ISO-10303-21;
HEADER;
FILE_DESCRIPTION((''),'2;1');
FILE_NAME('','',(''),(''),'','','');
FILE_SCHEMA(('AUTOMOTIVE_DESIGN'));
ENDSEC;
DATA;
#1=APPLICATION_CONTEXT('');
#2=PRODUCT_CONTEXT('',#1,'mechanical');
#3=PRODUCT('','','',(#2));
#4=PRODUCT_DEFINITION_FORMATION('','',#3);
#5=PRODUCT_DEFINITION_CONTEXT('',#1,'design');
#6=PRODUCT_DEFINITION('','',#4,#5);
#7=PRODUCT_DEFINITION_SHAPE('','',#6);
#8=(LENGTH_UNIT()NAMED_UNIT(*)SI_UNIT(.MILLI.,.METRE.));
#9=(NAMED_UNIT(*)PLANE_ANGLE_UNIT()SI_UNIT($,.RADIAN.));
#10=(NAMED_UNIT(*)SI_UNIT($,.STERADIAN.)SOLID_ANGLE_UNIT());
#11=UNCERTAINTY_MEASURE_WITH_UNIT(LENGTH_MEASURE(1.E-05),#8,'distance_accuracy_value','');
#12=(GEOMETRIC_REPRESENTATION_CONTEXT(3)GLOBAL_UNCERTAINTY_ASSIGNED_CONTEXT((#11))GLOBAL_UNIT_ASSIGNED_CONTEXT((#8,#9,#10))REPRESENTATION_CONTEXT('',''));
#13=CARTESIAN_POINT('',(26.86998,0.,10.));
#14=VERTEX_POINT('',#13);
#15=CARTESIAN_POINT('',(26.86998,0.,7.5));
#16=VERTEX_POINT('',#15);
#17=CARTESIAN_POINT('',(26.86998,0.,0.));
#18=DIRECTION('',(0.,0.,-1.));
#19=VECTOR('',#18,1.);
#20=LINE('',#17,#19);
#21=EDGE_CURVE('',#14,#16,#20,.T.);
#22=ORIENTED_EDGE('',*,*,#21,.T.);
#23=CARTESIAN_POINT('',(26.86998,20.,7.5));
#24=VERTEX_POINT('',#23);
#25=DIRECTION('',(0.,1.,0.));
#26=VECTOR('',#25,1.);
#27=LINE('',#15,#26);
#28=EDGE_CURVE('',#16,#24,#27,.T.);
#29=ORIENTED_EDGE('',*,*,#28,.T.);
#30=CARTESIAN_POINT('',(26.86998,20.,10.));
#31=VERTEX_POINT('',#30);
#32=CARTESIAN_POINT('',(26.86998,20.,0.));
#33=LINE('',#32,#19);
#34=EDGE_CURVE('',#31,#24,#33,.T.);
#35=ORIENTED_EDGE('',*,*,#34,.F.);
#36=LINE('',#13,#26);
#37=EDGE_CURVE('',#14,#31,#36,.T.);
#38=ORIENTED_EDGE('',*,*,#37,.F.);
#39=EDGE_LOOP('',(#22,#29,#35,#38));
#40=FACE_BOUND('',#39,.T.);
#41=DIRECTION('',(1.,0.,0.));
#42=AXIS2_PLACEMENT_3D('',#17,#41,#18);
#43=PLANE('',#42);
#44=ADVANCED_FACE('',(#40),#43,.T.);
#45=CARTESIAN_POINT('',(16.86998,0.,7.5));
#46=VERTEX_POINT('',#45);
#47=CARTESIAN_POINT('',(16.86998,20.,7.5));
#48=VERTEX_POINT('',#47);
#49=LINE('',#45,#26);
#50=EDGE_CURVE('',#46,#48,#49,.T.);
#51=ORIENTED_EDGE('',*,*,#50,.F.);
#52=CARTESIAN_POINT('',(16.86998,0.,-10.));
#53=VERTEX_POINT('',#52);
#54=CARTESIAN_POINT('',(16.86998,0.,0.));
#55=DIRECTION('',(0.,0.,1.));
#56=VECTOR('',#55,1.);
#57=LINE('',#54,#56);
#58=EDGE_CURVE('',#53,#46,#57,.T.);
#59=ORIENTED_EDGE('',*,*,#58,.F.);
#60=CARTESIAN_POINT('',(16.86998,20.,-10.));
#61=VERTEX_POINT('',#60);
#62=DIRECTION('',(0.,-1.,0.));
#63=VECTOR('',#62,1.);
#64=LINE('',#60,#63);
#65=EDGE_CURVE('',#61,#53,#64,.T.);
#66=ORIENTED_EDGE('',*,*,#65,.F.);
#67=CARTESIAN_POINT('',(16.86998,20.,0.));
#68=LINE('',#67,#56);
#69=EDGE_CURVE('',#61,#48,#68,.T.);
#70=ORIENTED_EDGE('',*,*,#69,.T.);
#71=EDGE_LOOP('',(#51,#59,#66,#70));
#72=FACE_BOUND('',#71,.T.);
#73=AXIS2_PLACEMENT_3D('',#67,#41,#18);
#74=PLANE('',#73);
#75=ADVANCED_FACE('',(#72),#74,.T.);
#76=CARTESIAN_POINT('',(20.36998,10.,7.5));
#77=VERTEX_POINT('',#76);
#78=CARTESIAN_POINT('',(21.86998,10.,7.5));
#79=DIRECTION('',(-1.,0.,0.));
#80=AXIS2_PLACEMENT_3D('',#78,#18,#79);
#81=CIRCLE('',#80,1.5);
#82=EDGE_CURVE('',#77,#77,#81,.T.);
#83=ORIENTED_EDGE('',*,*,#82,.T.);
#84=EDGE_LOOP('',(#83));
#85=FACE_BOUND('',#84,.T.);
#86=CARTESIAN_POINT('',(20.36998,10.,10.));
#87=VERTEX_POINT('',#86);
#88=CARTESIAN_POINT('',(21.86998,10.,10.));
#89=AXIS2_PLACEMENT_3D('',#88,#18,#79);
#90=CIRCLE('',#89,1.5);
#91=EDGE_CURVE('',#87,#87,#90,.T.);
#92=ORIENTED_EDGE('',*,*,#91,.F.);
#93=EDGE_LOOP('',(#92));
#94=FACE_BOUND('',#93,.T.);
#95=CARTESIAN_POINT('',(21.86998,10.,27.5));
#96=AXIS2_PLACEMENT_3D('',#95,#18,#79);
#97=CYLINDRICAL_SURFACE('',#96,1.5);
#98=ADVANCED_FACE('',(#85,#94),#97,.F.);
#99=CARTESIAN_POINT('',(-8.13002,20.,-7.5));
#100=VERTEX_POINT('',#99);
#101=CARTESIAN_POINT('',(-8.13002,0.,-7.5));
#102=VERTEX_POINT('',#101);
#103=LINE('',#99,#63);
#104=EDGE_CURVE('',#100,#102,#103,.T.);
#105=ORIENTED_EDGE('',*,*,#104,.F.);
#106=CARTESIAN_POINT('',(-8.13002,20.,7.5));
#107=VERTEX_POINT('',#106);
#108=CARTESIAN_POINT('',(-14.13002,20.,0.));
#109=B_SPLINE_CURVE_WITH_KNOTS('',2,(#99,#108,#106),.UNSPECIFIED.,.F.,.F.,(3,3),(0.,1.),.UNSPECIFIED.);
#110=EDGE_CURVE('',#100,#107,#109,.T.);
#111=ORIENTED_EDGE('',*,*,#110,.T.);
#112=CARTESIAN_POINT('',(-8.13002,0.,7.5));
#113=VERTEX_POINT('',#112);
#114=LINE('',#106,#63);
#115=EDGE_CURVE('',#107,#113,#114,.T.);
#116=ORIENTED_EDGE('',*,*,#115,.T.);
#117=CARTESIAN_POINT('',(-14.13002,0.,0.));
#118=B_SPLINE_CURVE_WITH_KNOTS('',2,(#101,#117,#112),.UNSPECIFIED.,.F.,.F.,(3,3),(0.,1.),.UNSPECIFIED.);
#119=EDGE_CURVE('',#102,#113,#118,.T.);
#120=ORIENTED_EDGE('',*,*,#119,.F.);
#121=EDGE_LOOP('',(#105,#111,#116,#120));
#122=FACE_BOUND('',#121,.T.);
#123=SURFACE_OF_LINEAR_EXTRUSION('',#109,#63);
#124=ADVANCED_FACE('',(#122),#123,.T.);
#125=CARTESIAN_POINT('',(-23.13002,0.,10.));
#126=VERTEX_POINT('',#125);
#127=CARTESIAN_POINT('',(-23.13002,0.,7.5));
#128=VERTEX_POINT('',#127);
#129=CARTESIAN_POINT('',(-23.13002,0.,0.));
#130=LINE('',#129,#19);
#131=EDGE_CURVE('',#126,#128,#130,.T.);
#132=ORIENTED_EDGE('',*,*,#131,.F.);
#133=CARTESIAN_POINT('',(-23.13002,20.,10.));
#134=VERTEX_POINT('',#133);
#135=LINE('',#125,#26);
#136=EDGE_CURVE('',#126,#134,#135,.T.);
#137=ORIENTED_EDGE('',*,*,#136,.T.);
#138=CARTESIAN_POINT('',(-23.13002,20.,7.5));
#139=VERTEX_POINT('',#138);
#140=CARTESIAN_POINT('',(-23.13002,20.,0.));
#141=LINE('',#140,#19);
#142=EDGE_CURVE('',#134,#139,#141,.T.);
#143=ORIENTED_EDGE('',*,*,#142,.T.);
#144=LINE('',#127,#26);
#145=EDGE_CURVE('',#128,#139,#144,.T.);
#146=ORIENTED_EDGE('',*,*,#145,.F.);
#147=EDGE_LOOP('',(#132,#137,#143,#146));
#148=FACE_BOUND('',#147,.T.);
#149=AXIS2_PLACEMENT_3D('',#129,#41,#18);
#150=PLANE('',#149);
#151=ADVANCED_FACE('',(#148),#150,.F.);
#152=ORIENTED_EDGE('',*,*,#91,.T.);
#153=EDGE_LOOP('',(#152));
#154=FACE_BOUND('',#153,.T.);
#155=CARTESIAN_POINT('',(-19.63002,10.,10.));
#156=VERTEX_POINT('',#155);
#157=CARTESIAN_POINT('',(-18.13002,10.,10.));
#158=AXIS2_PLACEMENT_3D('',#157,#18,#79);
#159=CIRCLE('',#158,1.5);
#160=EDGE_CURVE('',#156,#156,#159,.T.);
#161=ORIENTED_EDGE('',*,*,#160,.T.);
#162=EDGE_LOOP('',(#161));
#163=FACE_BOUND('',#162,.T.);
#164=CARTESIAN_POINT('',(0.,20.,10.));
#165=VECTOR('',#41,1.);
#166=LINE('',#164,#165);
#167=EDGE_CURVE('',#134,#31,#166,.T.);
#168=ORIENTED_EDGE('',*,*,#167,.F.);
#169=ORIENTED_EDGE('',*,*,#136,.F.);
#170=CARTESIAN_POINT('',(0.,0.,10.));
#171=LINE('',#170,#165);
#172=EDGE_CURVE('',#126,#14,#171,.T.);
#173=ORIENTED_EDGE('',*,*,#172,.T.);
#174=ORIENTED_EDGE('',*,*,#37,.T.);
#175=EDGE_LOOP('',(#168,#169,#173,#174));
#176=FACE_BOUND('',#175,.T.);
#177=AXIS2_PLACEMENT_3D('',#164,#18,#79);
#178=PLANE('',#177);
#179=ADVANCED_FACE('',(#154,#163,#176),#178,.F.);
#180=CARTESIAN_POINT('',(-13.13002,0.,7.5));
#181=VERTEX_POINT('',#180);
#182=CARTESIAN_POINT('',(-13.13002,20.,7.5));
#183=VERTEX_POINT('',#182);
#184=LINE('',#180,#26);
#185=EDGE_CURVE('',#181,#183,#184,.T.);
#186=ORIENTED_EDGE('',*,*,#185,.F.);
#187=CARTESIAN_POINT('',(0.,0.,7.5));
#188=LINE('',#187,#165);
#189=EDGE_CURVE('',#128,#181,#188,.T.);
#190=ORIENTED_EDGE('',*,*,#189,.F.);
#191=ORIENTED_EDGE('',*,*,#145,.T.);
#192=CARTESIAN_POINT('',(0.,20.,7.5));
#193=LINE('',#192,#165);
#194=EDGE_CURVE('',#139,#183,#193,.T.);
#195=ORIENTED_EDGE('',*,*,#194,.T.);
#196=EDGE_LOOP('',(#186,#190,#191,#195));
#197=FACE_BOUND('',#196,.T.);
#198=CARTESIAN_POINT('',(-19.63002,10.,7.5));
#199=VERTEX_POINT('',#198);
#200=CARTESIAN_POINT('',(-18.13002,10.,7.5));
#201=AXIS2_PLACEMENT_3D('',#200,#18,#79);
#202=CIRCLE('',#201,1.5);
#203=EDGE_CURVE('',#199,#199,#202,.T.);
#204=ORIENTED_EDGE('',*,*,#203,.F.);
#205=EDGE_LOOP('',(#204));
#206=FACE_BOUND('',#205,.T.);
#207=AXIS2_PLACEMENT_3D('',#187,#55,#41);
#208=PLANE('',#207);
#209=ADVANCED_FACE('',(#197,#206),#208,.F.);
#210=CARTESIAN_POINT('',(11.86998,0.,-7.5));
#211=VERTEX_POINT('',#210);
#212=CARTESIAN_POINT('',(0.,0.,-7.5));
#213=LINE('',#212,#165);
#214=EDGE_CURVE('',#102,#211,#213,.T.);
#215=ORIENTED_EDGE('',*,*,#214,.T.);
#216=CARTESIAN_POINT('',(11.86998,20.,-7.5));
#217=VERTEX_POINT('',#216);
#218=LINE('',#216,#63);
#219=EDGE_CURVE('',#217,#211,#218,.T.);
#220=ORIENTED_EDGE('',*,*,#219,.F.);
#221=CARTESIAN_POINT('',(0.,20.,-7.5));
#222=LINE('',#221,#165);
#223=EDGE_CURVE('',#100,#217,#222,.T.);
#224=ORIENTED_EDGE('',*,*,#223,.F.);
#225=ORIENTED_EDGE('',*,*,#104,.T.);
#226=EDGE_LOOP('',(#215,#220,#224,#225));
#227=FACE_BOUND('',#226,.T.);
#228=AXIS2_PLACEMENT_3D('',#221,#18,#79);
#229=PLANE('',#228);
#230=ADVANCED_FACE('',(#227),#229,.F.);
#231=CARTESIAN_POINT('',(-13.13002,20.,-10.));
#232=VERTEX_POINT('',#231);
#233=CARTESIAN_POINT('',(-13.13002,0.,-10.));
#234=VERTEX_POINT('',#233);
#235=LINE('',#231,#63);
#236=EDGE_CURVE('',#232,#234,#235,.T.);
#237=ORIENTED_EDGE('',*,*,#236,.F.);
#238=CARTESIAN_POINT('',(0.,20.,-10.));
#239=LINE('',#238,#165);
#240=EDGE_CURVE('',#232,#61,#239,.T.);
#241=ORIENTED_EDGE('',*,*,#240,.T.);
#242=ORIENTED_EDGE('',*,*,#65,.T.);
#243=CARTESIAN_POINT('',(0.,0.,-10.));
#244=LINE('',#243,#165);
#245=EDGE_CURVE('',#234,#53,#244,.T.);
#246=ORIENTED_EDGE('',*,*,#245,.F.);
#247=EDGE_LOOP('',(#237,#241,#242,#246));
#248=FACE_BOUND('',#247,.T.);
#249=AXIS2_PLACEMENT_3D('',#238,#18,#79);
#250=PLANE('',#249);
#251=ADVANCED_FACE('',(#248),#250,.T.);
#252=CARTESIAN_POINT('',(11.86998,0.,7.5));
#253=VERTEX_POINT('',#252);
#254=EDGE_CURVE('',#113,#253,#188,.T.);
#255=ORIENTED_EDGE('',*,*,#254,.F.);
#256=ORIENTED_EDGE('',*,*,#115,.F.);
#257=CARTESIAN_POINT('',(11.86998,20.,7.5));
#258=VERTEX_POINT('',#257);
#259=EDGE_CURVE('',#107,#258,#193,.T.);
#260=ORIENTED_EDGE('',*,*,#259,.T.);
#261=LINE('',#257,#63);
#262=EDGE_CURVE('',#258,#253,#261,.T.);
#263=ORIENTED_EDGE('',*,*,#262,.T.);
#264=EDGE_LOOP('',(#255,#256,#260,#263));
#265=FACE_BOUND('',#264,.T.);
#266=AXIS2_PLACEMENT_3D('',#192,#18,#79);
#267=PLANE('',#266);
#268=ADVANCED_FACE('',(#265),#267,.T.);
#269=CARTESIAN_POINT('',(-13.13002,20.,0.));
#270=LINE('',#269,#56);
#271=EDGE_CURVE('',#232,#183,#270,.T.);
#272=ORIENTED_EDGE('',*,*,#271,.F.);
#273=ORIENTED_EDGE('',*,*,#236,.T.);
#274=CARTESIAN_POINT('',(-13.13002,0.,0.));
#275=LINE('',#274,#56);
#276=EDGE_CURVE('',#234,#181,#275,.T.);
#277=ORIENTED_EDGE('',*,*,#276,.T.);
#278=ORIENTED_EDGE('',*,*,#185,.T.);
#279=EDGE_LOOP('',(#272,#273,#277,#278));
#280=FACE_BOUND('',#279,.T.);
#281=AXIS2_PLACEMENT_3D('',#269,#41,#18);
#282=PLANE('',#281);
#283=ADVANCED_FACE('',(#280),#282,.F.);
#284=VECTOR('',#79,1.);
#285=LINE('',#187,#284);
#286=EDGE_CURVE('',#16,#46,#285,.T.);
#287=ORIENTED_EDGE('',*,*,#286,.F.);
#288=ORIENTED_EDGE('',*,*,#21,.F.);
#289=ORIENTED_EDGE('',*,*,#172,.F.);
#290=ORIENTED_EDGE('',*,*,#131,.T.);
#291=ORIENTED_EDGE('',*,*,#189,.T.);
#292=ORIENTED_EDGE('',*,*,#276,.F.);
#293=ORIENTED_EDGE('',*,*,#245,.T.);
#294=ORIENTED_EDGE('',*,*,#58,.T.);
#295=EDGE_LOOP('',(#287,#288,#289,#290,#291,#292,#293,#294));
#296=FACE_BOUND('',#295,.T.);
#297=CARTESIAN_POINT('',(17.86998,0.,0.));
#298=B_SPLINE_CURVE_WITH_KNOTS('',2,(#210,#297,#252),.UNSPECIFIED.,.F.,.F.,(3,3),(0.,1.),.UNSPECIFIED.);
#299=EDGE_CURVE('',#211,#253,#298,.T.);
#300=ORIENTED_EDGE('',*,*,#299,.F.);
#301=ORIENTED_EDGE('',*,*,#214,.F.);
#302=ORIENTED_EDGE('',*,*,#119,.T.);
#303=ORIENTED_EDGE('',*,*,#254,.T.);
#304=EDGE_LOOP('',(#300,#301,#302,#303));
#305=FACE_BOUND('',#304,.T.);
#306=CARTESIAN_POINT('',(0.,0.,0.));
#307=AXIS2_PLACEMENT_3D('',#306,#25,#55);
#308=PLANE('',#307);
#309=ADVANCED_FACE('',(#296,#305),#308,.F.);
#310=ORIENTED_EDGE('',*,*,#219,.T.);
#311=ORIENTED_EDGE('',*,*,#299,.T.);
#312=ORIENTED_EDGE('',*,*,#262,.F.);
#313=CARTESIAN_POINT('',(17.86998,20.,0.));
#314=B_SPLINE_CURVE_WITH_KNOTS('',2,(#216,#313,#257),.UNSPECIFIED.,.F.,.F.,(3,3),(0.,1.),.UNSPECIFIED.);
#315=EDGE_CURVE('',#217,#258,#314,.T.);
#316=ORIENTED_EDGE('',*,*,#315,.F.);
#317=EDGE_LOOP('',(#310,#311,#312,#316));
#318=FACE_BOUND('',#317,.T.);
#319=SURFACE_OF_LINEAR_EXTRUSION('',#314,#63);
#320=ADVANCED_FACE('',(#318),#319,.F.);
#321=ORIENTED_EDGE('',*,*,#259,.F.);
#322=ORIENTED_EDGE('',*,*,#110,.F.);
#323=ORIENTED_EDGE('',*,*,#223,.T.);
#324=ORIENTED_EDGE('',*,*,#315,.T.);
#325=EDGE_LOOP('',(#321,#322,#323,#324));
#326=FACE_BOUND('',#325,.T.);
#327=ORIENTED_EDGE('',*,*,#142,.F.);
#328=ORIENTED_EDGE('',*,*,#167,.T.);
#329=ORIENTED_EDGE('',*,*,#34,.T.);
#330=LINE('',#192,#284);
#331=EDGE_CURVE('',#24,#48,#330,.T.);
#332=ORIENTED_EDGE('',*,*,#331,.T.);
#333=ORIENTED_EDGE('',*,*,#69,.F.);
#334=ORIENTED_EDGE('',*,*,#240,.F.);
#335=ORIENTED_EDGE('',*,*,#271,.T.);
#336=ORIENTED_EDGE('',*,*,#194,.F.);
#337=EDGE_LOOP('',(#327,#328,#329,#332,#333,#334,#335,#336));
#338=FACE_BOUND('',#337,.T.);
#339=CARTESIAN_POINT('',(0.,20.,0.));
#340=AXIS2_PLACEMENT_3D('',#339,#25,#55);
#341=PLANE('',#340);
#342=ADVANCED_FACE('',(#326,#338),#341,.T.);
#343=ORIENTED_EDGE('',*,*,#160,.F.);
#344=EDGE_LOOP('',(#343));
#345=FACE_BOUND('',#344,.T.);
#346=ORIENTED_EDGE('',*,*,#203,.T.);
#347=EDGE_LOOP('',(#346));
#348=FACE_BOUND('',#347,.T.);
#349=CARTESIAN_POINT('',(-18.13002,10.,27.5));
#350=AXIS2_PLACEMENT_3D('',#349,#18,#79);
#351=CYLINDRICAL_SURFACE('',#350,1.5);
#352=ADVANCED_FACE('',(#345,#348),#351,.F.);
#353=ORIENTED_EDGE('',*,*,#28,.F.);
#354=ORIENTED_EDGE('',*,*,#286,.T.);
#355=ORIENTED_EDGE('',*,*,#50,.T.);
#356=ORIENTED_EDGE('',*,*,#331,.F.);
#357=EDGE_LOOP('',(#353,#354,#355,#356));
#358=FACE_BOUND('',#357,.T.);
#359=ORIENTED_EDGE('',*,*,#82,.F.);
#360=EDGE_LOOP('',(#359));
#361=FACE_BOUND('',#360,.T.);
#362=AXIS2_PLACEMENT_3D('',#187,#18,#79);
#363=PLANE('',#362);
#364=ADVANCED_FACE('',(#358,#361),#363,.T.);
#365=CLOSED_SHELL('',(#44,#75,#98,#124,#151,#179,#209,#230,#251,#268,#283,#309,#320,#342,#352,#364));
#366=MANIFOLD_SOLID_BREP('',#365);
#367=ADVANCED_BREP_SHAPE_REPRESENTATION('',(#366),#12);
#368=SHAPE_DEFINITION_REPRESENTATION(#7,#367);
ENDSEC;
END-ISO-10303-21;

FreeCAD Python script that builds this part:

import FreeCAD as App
import Part
import Sketcher
Q = App.Units.Quantity

doc = App.newDocument("Part")
params = doc.addObject("Spreadsheet::Sheet", "Params")
for row, (alias, value) in enumerate([
    ("sketch1_width", "30 mm"),
    ("pad1_length", "20 mm"),
    ("sketch2_width", "10 mm"),
    ("sketch2_height", "2.5 mm"),
    ("pad2_length", "20 mm"),
    ("sketch3_diameter", "3 mm"),
    ("pocket1_length", "20 mm"),
], start=1):
    params.set(f"A{row}", alias)
    params.set(f"B{row}", "=" + value)
    params.setAlias(f"B{row}", alias)

body = doc.addObject("PartDesign::Body", "Body")

sketch1 = body.newObject("Sketcher::SketchObject", "Sketch")
sketch1.AttachmentSupport = (doc.getObject("XZ_Plane"), [""])
sketch1.MapMode = "FlatFace"
sketch1.addGeometry([
    Part.BSplineCurve([App.Vector(-8.13002, -7.5, 0), App.Vector(-14.13002, 0, 0), App.Vector(-8.13002, 7.5, 0)], [3, 3], [0, 1], False, 2, [1, 1, 1], False),
    Part.LineSegment(App.Vector(-8.13002, -7.5, 0), App.Vector(11.86998, -7.5, 0)),
    Part.BSplineCurve([App.Vector(11.86998, -7.5, 0), App.Vector(17.86998, 0, 0), App.Vector(11.86998, 7.5, 0)], [3, 3], [0, 1], False, 2, [1, 1, 1], False),
    Part.LineSegment(App.Vector(11.86998, 7.5, 0), App.Vector(-8.13002, 7.5, 0)),
    Part.LineSegment(App.Vector(16.86998, 10, 0), App.Vector(16.86998, -10, 0)),
    Part.LineSegment(App.Vector(16.86998, -10, 0), App.Vector(-13.13002, -10, 0)),
    Part.LineSegment(App.Vector(-13.13002, -10, 0), App.Vector(-13.13002, 10, 0)),
    Part.LineSegment(App.Vector(-13.13002, 10, 0), App.Vector(16.86998, 10, 0)),
], False)
sketch1.addConstraint([
    Sketcher.Constraint("Block", 0),
    Sketcher.Constraint("Block", 2),
    Sketcher.Constraint("Coincident", 0, 1, 1, 1),
    Sketcher.Constraint("Coincident", 1, 2, 2, 1),
    Sketcher.Constraint("Coincident", 2, 2, 3, 1),
    Sketcher.Constraint("Coincident", 3, 2, 0, 2),
    Sketcher.Constraint("Coincident", 4, 2, 5, 1),
    Sketcher.Constraint("Coincident", 5, 2, 6, 1),
    Sketcher.Constraint("Coincident", 6, 2, 7, 1),
    Sketcher.Constraint("Coincident", 7, 2, 4, 1),
    Sketcher.Constraint("Vertical", 4),
    Sketcher.Constraint("Horizontal", 5),
    Sketcher.Constraint("Vertical", 6),
    Sketcher.Constraint("Horizontal", 7),
    Sketcher.Constraint("Equal", 3, 4),
    Sketcher.Constraint("DistanceX", 5, 2, 5, 1, Q("30 mm")),
    Sketcher.Constraint("DistanceY", 4, 2, -1, 1, Q("10 mm")),
    Sketcher.Constraint("DistanceX", 1, 2, 4, 2, Q("5 mm")),
])
sketch1.setExpression("Constraints[15]", "Params.sketch1_width")
pad1 = body.newObject("PartDesign::Pad", "Pad")
pad1.Profile = sketch1
pad1.setExpression("Length", "Params.pad1_length")
pad1.Reversed = True

sketch2 = body.newObject("Sketcher::SketchObject", "Sketch001")
sketch2.AttachmentSupport = (doc.getObject("XZ_Plane"), [""])
sketch2.MapMode = "FlatFace"
sketch2.AttachmentOffset = App.Placement(App.Vector(0, 0, -20), App.Rotation())
sketch2.addGeometry([
    Part.LineSegment(App.Vector(16.9, 7.5, 0), App.Vector(16.9, 10, 0)),
    Part.LineSegment(App.Vector(16.9, 10, 0), App.Vector(26.9, 10, 0)),
    Part.LineSegment(App.Vector(26.9, 10, 0), App.Vector(26.9, 7.5, 0)),
    Part.LineSegment(App.Vector(26.9, 7.5, 0), App.Vector(16.9, 7.5, 0)),
    Part.LineSegment(App.Vector(-23.1, 7.5, 0), App.Vector(-23.1, 10, 0)),
    Part.LineSegment(App.Vector(-23.1, 10, 0), App.Vector(-13.1, 10, 0)),
    Part.LineSegment(App.Vector(-13.1, 10, 0), App.Vector(-13.1, 7.5, 0)),
    Part.LineSegment(App.Vector(-13.1, 7.5, 0), App.Vector(-23.1, 7.5, 0)),
], False)
sketch2.addConstraint([
    Sketcher.Constraint("Coincident", 0, 2, 1, 1),
    Sketcher.Constraint("Coincident", 1, 2, 2, 1),
    Sketcher.Constraint("Coincident", 2, 2, 3, 1),
    Sketcher.Constraint("Coincident", 3, 2, 0, 1),
    Sketcher.Constraint("Coincident", 4, 2, 5, 1),
    Sketcher.Constraint("Coincident", 5, 2, 6, 1),
    Sketcher.Constraint("Coincident", 6, 2, 7, 1),
    Sketcher.Constraint("Coincident", 7, 2, 4, 1),
    Sketcher.Constraint("Vertical", 0),
    Sketcher.Constraint("Horizontal", 1),
    Sketcher.Constraint("Vertical", 2),
    Sketcher.Constraint("Horizontal", 3),
    Sketcher.Constraint("Vertical", 4),
    Sketcher.Constraint("Horizontal", 5),
    Sketcher.Constraint("Vertical", 6),
    Sketcher.Constraint("Horizontal", 7),
    Sketcher.Constraint("Horizontal", 1, 2, 4, 2),
    Sketcher.Constraint("Horizontal", 3, 2, 6, 2),
    Sketcher.Constraint("Equal", 3, 5),
    Sketcher.Constraint("DistanceX", 1, 1, 1, 2, Q("10 mm")),
    Sketcher.Constraint("DistanceY", 0, 1, 0, 2, Q("2.5 mm")),
    Sketcher.Constraint("DistanceY", -1, 1, 0, 2, Q("10 mm")),
    Sketcher.Constraint("DistanceX", 4, 2, 0, 2, Q("40 mm")),
    Sketcher.Constraint("DistanceX", -1, 1, 0, 2, Q("16.86998 mm")),
])
sketch2.setExpression("Constraints[19]", "Params.sketch2_width")
sketch2.setExpression("Constraints[20]", "Params.sketch2_height")
pad2 = body.newObject("PartDesign::Pad", "Pad001")
pad2.Profile = sketch2
pad2.setExpression("Length", "Params.pad2_length")

sketch3 = body.newObject("Sketcher::SketchObject", "Sketch002")
sketch3.AttachmentSupport = (doc.getObject("XY_Plane"), [""])
sketch3.MapMode = "FlatFace"
sketch3.AttachmentOffset = App.Placement(App.Vector(0, 0, 7.5), App.Rotation())
sketch3.addGeometry([
    Part.Circle(App.Vector(-18.1, 10, 0), App.Vector(0, 0, 1), 1.5),
    Part.Circle(App.Vector(21.9, 10, 0), App.Vector(0, 0, 1), 1.5),
], False)
sketch3.addConstraint([
    Sketcher.Constraint("Equal", 0, 1),
    Sketcher.Constraint("Horizontal", 0, 3, 1, 3),
    Sketcher.Constraint("Diameter", 0, Q("3 mm")),
    Sketcher.Constraint("DistanceY", -1, 1, 0, 3, Q("10 mm")),
    Sketcher.Constraint("DistanceX", 0, 3, 1, 3, Q("40 mm")),
    Sketcher.Constraint("DistanceX", 0, 3, -1, 1, Q("18.13002 mm")),
])
sketch3.setExpression("Constraints[2]", "Params.sketch3_diameter")
pocket1 = body.newObject("PartDesign::Pocket", "Pocket")
pocket1.Profile = sketch3
pocket1.setExpression("Length", "Params.pocket1_length")
pocket1.Reversed = True

doc.recompute()
